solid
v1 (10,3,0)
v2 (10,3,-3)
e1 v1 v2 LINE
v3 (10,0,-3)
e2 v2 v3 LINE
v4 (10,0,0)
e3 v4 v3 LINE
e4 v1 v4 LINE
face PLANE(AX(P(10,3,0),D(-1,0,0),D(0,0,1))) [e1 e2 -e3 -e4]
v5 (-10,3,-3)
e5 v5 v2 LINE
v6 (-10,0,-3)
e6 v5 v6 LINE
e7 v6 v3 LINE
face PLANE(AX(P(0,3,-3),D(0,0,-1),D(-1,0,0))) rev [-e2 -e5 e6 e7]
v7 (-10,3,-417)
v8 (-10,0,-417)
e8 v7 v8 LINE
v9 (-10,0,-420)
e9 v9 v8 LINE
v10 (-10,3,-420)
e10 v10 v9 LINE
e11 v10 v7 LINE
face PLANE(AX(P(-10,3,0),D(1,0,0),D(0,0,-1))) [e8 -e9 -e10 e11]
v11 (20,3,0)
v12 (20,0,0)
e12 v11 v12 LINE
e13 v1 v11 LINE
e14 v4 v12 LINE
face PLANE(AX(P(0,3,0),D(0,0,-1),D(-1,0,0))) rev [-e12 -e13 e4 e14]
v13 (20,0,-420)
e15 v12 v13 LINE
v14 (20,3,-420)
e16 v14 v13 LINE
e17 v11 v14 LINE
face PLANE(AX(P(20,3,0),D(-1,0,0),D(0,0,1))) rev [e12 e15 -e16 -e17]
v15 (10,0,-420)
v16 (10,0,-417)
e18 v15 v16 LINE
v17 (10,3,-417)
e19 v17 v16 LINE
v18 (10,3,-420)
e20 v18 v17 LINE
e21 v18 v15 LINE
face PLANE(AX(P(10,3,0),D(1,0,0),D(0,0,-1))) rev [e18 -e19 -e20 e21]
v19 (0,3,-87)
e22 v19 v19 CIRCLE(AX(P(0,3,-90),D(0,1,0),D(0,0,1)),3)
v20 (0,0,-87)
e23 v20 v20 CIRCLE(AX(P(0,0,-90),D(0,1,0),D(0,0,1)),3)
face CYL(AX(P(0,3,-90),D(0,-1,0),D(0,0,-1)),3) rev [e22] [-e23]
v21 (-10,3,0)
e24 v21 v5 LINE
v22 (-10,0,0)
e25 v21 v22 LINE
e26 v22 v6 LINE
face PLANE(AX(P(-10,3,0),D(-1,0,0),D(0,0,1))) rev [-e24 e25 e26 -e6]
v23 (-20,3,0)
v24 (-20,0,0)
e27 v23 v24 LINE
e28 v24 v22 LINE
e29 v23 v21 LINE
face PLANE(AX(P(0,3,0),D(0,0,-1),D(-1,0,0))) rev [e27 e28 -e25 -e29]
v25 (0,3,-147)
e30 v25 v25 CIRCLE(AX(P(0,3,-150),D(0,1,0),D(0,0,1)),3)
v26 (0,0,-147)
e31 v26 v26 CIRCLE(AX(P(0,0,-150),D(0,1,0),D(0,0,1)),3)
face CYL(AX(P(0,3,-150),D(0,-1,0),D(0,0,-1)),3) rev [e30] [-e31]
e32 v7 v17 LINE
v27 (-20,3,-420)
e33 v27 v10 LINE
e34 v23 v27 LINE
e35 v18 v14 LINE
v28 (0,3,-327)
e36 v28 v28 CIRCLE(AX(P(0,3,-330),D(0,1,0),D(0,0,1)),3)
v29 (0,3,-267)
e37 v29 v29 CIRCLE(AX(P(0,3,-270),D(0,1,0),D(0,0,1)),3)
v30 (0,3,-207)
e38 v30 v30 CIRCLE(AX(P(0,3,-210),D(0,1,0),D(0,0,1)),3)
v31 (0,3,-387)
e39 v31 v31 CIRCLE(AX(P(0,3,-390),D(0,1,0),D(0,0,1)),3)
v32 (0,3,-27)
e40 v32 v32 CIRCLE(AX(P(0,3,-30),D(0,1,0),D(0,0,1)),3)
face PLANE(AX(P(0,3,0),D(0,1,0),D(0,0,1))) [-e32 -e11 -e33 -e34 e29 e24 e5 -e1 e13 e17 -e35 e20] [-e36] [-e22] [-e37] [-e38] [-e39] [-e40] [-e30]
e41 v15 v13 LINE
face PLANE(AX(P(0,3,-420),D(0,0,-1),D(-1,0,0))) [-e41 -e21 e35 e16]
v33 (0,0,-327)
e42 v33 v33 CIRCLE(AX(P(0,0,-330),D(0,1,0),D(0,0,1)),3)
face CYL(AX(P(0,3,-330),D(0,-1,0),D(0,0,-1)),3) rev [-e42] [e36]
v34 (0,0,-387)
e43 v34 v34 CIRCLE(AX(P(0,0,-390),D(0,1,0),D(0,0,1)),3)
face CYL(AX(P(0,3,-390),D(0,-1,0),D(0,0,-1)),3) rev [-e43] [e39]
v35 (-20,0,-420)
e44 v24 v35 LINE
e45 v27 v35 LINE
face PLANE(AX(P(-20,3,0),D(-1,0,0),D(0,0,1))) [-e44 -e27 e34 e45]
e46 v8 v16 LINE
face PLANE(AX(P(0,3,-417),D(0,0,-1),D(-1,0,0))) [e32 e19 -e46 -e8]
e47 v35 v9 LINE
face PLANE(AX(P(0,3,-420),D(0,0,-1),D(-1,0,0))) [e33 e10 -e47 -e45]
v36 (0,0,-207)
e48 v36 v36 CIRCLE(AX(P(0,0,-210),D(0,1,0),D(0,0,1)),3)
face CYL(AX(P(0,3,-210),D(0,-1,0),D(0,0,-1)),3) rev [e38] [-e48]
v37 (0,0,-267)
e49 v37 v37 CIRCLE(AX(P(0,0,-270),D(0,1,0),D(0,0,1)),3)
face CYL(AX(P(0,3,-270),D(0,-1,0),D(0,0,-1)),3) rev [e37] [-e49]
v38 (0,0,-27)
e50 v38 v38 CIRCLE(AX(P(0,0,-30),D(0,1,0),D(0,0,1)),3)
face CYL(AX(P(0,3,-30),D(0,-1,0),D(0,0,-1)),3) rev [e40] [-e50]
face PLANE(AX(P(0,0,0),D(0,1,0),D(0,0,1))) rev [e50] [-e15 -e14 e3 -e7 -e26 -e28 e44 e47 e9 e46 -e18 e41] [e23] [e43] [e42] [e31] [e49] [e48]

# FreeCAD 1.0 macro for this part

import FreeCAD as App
import Part
import Sketcher
Q = App.Units.Quantity

doc = App.newDocument("Part")
body = doc.addObject("PartDesign::Body", "Body")

sketch1 = body.newObject("Sketcher::SketchObject", "Sketch")
sketch1.AttachmentSupport = (doc.getObject("XZ_Plane"), [""])
sketch1.MapMode = "FlatFace"
sketch1.addGeometry(Part.LineSegment(App.Vector(-20, -420, 0), App.Vector(-20, 0, 0)), False)
sketch1.addGeometry(Part.LineSegment(App.Vector(-20, 0, 0), App.Vector(-10, 0, 0)), False)
sketch1.addGeometry(Part.LineSegment(App.Vector(-10, 0, 0), App.Vector(-10, -3, 0)), False)
sketch1.addGeometry(Part.LineSegment(App.Vector(-10, -3, 0), App.Vector(10, -3, 0)), False)
sketch1.addGeometry(Part.LineSegment(App.Vector(10, -3, 0), App.Vector(10, 0, 0)), False)
sketch1.addGeometry(Part.LineSegment(App.Vector(10, 0, 0), App.Vector(20, 0, 0)), False)
sketch1.addGeometry(Part.LineSegment(App.Vector(20, 0, 0), App.Vector(20, -420, 0)), False)
sketch1.addGeometry(Part.LineSegment(App.Vector(20, -420, 0), App.Vector(10, -420, 0)), False)
sketch1.addGeometry(Part.LineSegment(App.Vector(10, -420, 0), App.Vector(10, -417, 0)), False)
sketch1.addGeometry(Part.LineSegment(App.Vector(10, -417, 0), App.Vector(-10, -417, 0)), False)
sketch1.addGeometry(Part.LineSegment(App.Vector(-10, -417, 0), App.Vector(-10, -420, 0)), False)
sketch1.addGeometry(Part.LineSegment(App.Vector(-10, -420, 0), App.Vector(-20, -420, 0)), False)
sketch1.addGeometry(Part.Circle(App.Vector(0, -30, 0), App.Vector(0, 0, 1), 3), False)
sketch1.addGeometry(Part.Circle(App.Vector(0, -90, 0), App.Vector(0, 0, 1), 3), False)
sketch1.addGeometry(Part.Circle(App.Vector(0, -150, 0), App.Vector(0, 0, 1), 3), False)
sketch1.addGeometry(Part.Circle(App.Vector(0, -210, 0), App.Vector(0, 0, 1), 3), False)
sketch1.addGeometry(Part.Circle(App.Vector(0, -270, 0), App.Vector(0, 0, 1), 3), False)
sketch1.addGeometry(Part.Circle(App.Vector(0, -330, 0), App.Vector(0, 0, 1), 3), False)
sketch1.addGeometry(Part.Circle(App.Vector(0, -390, 0), App.Vector(0, 0, 1), 3), False)
sketch1.addConstraint(Sketcher.Constraint("Coincident", 0, 2, 1, 1))
sketch1.addConstraint(Sketcher.Constraint("Coincident", 1, 2, 2, 1))
sketch1.addConstraint(Sketcher.Constraint("Coincident", 2, 2, 3, 1))
sketch1.addConstraint(Sketcher.Constraint("Coincident", 3, 2, 4, 1))
sketch1.addConstraint(Sketcher.Constraint("Coincident", 4, 2, 5, 1))
sketch1.addConstraint(Sketcher.Constraint("Coincident", 5, 2, 6, 1))
sketch1.addConstraint(Sketcher.Constraint("Coincident", 6, 2, 7, 1))
sketch1.addConstraint(Sketcher.Constraint("Coincident", 7, 2, 8, 1))
sketch1.addConstraint(Sketcher.Constraint("Coincident", 8, 2, 9, 1))
sketch1.addConstraint(Sketcher.Constraint("Coincident", 9, 2, 10, 1))
sketch1.addConstraint(Sketcher.Constraint("Coincident", 10, 2, 11, 1))
sketch1.addConstraint(Sketcher.Constraint("Coincident", 11, 2, 0, 1))
sketch1.addConstraint(Sketcher.Constraint("Vertical", 0))
sketch1.addConstraint(Sketcher.Constraint("Horizontal", 1))
sketch1.addConstraint(Sketcher.Constraint("Vertical", 2))
sketch1.addConstraint(Sketcher.Constraint("Horizontal", 3))
sketch1.addConstraint(Sketcher.Constraint("Vertical", 4))
sketch1.addConstraint(Sketcher.Constraint("Horizontal", 5))
sketch1.addConstraint(Sketcher.Constraint("Vertical", 6))
sketch1.addConstraint(Sketcher.Constraint("Horizontal", 7))
sketch1.addConstraint(Sketcher.Constraint("Vertical", 8))
sketch1.addConstraint(Sketcher.Constraint("Horizontal", 9))
sketch1.addConstraint(Sketcher.Constraint("Vertical", 10))
sketch1.addConstraint(Sketcher.Constraint("Horizontal", 11))
sketch1.addConstraint(Sketcher.Constraint("Equal", 12, 13))
sketch1.addConstraint(Sketcher.Constraint("Equal", 13, 14))
sketch1.addConstraint(Sketcher.Constraint("Equal", 14, 15))
sketch1.addConstraint(Sketcher.Constraint("Equal", 15, 16))
sketch1.addConstraint(Sketcher.Constraint("Equal", 16, 17))
sketch1.addConstraint(Sketcher.Constraint("Equal", 17, 18))
sketch1.addConstraint(Sketcher.Constraint("Symmetric", 1, 2, 4, 2, -1, 1))
sketch1.addConstraint(Sketcher.Constraint("Symmetric", 0, 2, 5, 2, -2))
sketch1.addConstraint(Sketcher.Constraint("Symmetric", 7, 2, 10, 2, -2))
sketch1.addConstraint(Sketcher.Constraint("PointOnObject", 12, 3, -2))
sketch1.addConstraint(Sketcher.Constraint("PointOnObject", 13, 3, -2))
sketch1.addConstraint(Sketcher.Constraint("PointOnObject", 14, 3, -2))
sketch1.addConstraint(Sketcher.Constraint("PointOnObject", 15, 3, -2))
sketch1.addConstraint(Sketcher.Constraint("PointOnObject", 16, 3, -2))
sketch1.addConstraint(Sketcher.Constraint("PointOnObject", 17, 3, -2))
sketch1.addConstraint(Sketcher.Constraint("PointOnObject", 18, 3, -2))
sketch1.addConstraint(Sketcher.Constraint("Vertical", 4, 2, 7, 2))
sketch1.addConstraint(Sketcher.Constraint("Equal", 4, 8))
sketch1.addConstraint(Sketcher.Constraint("Diameter", 12, Q("6 mm")))
sketch1.addConstraint(Sketcher.Constraint("DistanceX", 1, 1, 1, 2, Q("10 mm")))
sketch1.addConstraint(Sketcher.Constraint("DistanceX", 3, 1, 3, 2, Q("20 mm")))
sketch1.addConstraint(Sketcher.Constraint("DistanceY", 0, 1, 0, 2, Q("420 mm")))
sketch1.addConstraint(Sketcher.Constraint("DistanceY", 2, 2, 2, 1, Q("3 mm")))
sketch1.addConstraint(Sketcher.Constraint("DistanceY", 12, 3, -1, 1, Q("30 mm")))
sketch1.addConstraint(Sketcher.Constraint("DistanceY", 13, 3, -1, 1, Q("90 mm")))
sketch1.addConstraint(Sketcher.Constraint("DistanceY", 14, 3, -1, 1, Q("150 mm")))
sketch1.addConstraint(Sketcher.Constraint("DistanceY", 15, 3, -1, 1, Q("210 mm")))
sketch1.addConstraint(Sketcher.Constraint("DistanceY", 16, 3, -1, 1, Q("270 mm")))
sketch1.addConstraint(Sketcher.Constraint("DistanceY", 17, 3, -1, 1, Q("330 mm")))
sketch1.addConstraint(Sketcher.Constraint("DistanceY", 18, 3, -1, 1, Q("390 mm")))
pad1 = body.newObject("PartDesign::Pad", "Pad")
pad1.Profile = sketch1
pad1.Length = 3
pad1.Reversed = True

doc.recompute()
